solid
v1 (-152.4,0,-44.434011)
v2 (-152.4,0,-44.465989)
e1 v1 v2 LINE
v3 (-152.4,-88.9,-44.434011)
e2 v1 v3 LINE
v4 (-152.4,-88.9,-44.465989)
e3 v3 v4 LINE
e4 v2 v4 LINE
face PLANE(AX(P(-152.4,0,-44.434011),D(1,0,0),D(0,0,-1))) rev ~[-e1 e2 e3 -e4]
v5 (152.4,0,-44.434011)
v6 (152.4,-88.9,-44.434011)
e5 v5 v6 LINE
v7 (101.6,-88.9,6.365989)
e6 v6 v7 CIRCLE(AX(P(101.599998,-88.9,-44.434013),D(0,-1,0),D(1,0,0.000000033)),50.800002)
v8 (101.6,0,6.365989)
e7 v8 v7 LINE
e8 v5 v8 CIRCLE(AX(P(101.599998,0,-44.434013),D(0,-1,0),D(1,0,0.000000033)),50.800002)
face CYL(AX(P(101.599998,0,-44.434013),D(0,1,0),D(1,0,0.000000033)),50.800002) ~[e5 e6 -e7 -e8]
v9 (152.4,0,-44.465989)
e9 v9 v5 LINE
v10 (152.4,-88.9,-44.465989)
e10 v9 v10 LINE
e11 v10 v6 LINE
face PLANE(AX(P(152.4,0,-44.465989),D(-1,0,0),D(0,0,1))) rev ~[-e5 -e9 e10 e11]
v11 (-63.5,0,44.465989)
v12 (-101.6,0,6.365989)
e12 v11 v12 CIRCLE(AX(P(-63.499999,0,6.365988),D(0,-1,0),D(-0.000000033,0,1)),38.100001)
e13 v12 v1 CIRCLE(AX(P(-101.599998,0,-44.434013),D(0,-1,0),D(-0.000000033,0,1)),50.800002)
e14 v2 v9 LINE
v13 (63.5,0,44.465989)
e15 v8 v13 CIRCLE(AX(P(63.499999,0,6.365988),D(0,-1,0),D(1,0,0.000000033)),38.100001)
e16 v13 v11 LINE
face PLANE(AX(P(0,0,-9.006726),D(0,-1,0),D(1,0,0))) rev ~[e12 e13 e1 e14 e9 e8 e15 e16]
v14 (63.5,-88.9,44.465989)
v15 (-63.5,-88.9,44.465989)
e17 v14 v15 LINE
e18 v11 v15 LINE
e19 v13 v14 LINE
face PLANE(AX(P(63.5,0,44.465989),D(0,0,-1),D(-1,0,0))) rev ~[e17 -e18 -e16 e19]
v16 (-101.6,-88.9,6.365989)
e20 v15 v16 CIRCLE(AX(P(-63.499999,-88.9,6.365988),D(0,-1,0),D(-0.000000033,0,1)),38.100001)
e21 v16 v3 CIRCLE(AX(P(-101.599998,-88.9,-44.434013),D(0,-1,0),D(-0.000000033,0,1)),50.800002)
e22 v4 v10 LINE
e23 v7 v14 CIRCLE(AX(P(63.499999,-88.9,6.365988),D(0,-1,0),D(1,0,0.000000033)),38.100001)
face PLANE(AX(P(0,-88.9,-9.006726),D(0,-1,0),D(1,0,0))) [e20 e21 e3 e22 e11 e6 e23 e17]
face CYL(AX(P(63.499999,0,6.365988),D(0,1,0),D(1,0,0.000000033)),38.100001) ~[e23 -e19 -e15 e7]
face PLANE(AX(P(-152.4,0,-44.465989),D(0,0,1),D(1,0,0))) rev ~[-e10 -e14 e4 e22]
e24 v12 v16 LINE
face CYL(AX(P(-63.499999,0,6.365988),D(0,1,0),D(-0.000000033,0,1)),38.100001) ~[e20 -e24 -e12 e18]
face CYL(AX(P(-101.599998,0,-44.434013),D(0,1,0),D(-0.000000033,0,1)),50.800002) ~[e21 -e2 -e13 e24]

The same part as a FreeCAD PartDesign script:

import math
import FreeCAD as App
import Part
import Sketcher
Q = App.Units.Quantity

doc = App.newDocument("Part")
body = doc.addObject("PartDesign::Body", "Body")

sketch1 = doc.addObject("Sketcher::SketchObject", "Sketch")
body.addObject(sketch1)
sketch1.AttachmentSupport = (doc.XZ_Plane, [""])
sketch1.MapMode = "FlatFace"
sketch1.addGeometry(Part.LineSegment(App.Vector(-152.4, -44.465989, 0), App.Vector(152.4, -44.465989, 0)), False)
sketch1.addGeometry(Part.LineSegment(App.Vector(152.4, -44.465989, 0), App.Vector(152.4, -44.434011, 0)), False)
sketch1.addGeometry(Part.ArcOfCircle(Part.Circle(App.Vector(101.599998, -44.434013, 0), App.Vector(0, 0, 1), 50.800002), math.radians(0.000002), math.radians(89.999998)), False)
sketch1.addGeometry(Part.ArcOfCircle(Part.Circle(App.Vector(63.499999, 6.365988, 0), App.Vector(0, 0, 1), 38.100001), math.radians(0.000002), math.radians(89.999998)), False)
sketch1.addGeometry(Part.LineSegment(App.Vector(63.5, 44.465989, 0), App.Vector(-63.5, 44.465989, 0)), False)
sketch1.addGeometry(Part.ArcOfCircle(Part.Circle(App.Vector(-63.499999, 6.365988, 0), App.Vector(0, 0, 1), 38.100001), math.radians(90.000002), math.radians(179.999998)), False)
sketch1.addGeometry(Part.ArcOfCircle(Part.Circle(App.Vector(-101.599998, -44.434013, 0), App.Vector(0, 0, 1), 50.800002), math.radians(90.000002), math.radians(179.999998)), False)
sketch1.addGeometry(Part.LineSegment(App.Vector(-152.4, -44.434011, 0), App.Vector(-152.4, -44.465989, 0)), False)
sketch1.addConstraint(Sketcher.Constraint("Coincident", 0, 2, 1, 1))
sketch1.addConstraint(Sketcher.Constraint("Tangent", 1, 2, 2, 1))
sketch1.addConstraint(Sketcher.Constraint("Coincident", 2, 2, 3, 1))
sketch1.addConstraint(Sketcher.Constraint("Tangent", 3, 2, 4, 1))
sketch1.addConstraint(Sketcher.Constraint("Tangent", 4, 2, 5, 1))
sketch1.addConstraint(Sketcher.Constraint("Coincident", 5, 2, 6, 1))
sketch1.addConstraint(Sketcher.Constraint("Tangent", 6, 2, 7, 1))
sketch1.addConstraint(Sketcher.Constraint("Coincident", 7, 2, 0, 1))
sketch1.addConstraint(Sketcher.Constraint("Horizontal", 0))
sketch1.addConstraint(Sketcher.Constraint("Horizontal", 4))
sketch1.addConstraint(Sketcher.Constraint("Equal", 3, 5))
sketch1.addConstraint(Sketcher.Constraint("Equal", 2, 6))
sketch1.addConstraint(Sketcher.Constraint("Symmetric", 2, 3, 6, 3, -2))
sketch1.addConstraint(Sketcher.Constraint("Horizontal", 6, 3, 1, 2))
sketch1.addConstraint(Sketcher.Constraint("Horizontal", 5, 3, 2, 2))
sketch1.addConstraint(Sketcher.Constraint("Horizontal", 1, 2, 6, 2))
sketch1.addConstraint(Sketcher.Constraint("Vertical", 6, 3, 5, 2))
sketch1.addConstraint(Sketcher.Constraint("Radius", 2, Q("2.0000001 in")))
sketch1.addConstraint(Sketcher.Constraint("Radius", 3, Q("1.5 in")))
sketch1.addConstraint(Sketcher.Constraint("DistanceX", 0, 1, 0, 2, Q("12 in")))
sketch1.addConstraint(Sketcher.Constraint("DistanceX", 4, 2, 4, 1, Q("5 in")))
sketch1.addConstraint(Sketcher.Constraint("DistanceY", 1, 1, 1, 2, Q("0.031978 mm")))
sketch1.addConstraint(Sketcher.Constraint("DistanceY", 0, 2, -1, 1, Q("44.465989 mm")))
pad1 = doc.addObject("PartDesign::Pad", "Pad")
body.addObject(pad1)
pad1.Profile = sketch1
pad1.Length = Q("3.5 in")

doc.recompute()
